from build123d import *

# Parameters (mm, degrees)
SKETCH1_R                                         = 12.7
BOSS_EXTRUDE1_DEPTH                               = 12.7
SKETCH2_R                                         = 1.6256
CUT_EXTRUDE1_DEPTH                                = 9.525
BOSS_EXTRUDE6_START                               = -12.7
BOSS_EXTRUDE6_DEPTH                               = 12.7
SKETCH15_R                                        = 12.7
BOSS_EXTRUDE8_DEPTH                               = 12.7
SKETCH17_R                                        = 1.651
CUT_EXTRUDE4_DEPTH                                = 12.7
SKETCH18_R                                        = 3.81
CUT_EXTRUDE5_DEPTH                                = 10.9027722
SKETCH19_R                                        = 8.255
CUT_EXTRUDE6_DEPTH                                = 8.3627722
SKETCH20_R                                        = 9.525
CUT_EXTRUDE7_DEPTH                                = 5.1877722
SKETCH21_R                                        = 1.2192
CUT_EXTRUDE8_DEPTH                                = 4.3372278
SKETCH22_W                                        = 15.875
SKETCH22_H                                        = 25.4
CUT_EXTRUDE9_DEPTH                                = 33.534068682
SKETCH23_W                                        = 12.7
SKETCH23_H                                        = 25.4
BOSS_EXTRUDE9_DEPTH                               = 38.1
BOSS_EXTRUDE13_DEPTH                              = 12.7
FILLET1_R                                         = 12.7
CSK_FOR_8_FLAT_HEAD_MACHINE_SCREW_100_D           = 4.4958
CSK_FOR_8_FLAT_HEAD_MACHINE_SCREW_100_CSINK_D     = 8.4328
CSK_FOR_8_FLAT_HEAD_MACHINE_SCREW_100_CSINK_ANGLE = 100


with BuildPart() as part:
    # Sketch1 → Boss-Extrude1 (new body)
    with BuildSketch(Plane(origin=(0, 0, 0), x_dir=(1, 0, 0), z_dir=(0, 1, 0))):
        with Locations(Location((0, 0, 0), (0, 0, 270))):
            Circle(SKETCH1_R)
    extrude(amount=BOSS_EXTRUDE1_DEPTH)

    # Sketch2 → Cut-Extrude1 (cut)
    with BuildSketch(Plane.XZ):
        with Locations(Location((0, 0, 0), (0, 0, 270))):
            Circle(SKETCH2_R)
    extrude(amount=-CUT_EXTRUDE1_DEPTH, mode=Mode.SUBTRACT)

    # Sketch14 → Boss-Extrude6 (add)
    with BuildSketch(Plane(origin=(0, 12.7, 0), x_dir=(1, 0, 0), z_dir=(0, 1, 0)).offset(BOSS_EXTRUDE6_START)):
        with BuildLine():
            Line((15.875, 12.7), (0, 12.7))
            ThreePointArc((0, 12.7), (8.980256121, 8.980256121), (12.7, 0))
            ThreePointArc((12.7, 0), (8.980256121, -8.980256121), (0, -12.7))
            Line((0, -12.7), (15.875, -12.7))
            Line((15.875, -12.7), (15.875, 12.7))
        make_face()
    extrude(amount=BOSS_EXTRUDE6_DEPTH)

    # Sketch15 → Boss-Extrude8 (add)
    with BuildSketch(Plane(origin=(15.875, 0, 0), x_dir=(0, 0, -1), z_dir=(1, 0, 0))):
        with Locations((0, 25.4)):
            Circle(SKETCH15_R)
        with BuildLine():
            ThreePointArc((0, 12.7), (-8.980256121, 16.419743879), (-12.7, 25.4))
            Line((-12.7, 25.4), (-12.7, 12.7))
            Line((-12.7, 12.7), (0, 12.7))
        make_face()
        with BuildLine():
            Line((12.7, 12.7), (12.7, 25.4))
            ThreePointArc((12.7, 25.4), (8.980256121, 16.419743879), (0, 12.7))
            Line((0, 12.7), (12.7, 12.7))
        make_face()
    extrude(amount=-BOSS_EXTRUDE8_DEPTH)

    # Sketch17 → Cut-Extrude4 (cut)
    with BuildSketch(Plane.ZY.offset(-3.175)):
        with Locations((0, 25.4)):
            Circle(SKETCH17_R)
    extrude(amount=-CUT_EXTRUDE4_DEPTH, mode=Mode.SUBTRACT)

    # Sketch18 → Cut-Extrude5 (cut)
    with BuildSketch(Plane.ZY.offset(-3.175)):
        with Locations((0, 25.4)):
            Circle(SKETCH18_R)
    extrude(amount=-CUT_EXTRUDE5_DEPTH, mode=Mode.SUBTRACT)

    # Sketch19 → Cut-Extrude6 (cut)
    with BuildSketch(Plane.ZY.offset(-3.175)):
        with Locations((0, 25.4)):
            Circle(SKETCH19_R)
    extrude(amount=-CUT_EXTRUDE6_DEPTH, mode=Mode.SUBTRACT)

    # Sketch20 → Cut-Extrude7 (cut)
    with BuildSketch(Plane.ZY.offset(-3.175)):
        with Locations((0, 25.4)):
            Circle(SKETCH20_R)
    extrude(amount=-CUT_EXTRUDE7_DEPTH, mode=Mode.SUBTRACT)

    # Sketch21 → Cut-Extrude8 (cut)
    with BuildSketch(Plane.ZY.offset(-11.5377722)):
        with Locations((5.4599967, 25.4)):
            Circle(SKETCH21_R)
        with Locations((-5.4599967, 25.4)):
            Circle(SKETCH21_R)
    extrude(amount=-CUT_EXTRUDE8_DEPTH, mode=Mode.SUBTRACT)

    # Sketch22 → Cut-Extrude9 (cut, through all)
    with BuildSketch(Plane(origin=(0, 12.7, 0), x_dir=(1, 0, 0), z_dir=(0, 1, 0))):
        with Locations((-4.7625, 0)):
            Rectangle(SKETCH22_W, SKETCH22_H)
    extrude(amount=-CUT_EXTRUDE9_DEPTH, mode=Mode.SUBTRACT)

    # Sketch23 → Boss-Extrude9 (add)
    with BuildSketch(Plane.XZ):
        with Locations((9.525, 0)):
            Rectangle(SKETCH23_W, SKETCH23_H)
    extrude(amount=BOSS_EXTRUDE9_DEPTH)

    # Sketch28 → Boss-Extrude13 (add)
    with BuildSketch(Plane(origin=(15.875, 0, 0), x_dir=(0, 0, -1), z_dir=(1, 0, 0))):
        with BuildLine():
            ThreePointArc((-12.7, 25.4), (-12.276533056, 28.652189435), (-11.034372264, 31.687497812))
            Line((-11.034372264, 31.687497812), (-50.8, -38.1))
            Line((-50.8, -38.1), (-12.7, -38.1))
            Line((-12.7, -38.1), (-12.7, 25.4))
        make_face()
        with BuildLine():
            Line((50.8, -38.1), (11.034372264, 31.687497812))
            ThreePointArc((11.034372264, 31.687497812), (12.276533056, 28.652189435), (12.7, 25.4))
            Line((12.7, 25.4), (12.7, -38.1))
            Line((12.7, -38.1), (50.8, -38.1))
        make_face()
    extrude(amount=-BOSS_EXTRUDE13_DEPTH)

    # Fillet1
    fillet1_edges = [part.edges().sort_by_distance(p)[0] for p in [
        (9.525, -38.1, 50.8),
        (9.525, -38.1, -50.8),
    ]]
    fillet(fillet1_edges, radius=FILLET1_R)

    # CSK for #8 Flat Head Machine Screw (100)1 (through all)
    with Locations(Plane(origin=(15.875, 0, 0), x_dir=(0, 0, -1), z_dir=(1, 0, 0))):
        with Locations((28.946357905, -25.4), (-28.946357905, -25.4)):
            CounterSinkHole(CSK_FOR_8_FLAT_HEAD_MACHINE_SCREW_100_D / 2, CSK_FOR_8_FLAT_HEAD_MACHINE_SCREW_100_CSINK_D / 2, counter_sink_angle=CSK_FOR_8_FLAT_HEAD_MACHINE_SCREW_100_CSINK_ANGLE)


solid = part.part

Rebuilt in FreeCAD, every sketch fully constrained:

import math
import FreeCAD as App
import Part
import Sketcher
from FreeCAD import Vector
Q = App.Units.Quantity


def edges_at(feature, points):
    """Names of the edges that pass closest to the given points."""
    edges = feature.Shape.Edges
    near = lambda p: min(range(len(edges)), key=lambda i: edges[i].distToShape(Part.Vertex(*p))[0])
    return sorted({f"Edge{near(p) + 1}" for p in points})

doc = App.newDocument("Part")
body = doc.addObject("PartDesign::Body", "Body")

sketch1 = body.newObject("Sketcher::SketchObject", "Sketch")
sketch1.AttachmentSupport = (doc.getObject("XZ_Plane"), [""])
sketch1.MapMode = "FlatFace"
sketch1.addGeometry(Part.Circle(Vector(0, 0, 0), Vector(0, 0, 1), 13), False)
sketch1.addConstraint([
    Sketcher.Constraint("Coincident", 0, 3, -1, 1),
    Sketcher.Constraint("Diameter", 0, Q("1 in")),
])
pad1 = body.newObject("PartDesign::Pad", "Pad")
pad1.Profile = sketch1
pad1.Length = Q("0.5 in")
pad1.Reversed = True

sketch2 = body.newObject("Sketcher::SketchObject", "Sketch001")
sketch2.AttachmentSupport = (doc.getObject("XZ_Plane"), [""])
sketch2.MapMode = "FlatFace"
sketch2.addGeometry(Part.Circle(Vector(0, 0, 0), Vector(0, 0, 1), 1.6), False)
sketch2.addConstraint([
    Sketcher.Constraint("Coincident", 0, 3, -1, 1),
    Sketcher.Constraint("Diameter", 0, Q("0.128 in")),
])
pocket1 = body.newObject("PartDesign::Pocket", "Pocket")
pocket1.Profile = sketch2
pocket1.Length = Q("0.375 in")

sketch3 = body.newObject("Sketcher::SketchObject", "Sketch002")
sketch3.AttachmentSupport = (doc.getObject("XZ_Plane"), [""])
sketch3.MapMode = "FlatFace"
sketch3.addGeometry([
    Part.LineSegment(Vector(16, -13, 0), Vector(0, -13, 0)),
    Part.ArcOfCircle(Part.Circle(Vector(0, 0, 0), Vector(0, 0, 1), 13), math.radians(-90), math.radians(0)),
    Part.ArcOfCircle(Part.Circle(Vector(0, 0, 0), Vector(0, 0, 1), 13), math.radians(0), math.radians(90)),
    Part.LineSegment(Vector(0, 13, 0), Vector(16, 13, 0)),
    Part.LineSegment(Vector(16, 13, 0), Vector(16, -13, 0)),
], False)
sketch3.addConstraint([
    Sketcher.Constraint("Tangent", 0, 2, 1, 1),
    Sketcher.Constraint("Tangent", 1, 2, 2, 1),
    Sketcher.Constraint("Tangent", 2, 2, 3, 1),
    Sketcher.Constraint("Coincident", 3, 2, 4, 1),
    Sketcher.Constraint("Coincident", 4, 2, 0, 1),
    Sketcher.Constraint("Horizontal", 0),
    Sketcher.Constraint("Horizontal", 3),
    Sketcher.Constraint("Vertical", 4),
    Sketcher.Constraint("Coincident", 1, 3, -1, 1),
    Sketcher.Constraint("Equal", 1, 2),
    Sketcher.Constraint("PointOnObject", 1, 2, -1),
    Sketcher.Constraint("Radius", 1, Q("0.5 in")),
    Sketcher.Constraint("DistanceX", 0, 2, 0, 1, Q("0.625 in")),
])
pad2 = body.newObject("PartDesign::Pad", "Pad001")
pad2.Profile = sketch3
pad2.Length = Q("0.5 in")
pad2.Reversed = True

sketch4 = body.newObject("Sketcher::SketchObject", "Sketch003")
sketch4.AttachmentSupport = (doc.getObject("YZ_Plane"), [""])
sketch4.MapMode = "FlatFace"
sketch4.AttachmentOffset = App.Placement(Vector(0, 0, 0.625 * 25.4), App.Rotation())
sketch4.addGeometry([
    Part.LineSegment(Vector(25, 13, 0), Vector(13, 13, 0)),
    Part.LineSegment(Vector(13, 13, 0), Vector(13, -13, 0)),
    Part.LineSegment(Vector(13, -13, 0), Vector(25, -13, 0)),
    Part.ArcOfCircle(Part.Circle(Vector(25, 0, 0), Vector(0, 0, 1), 13), math.radians(-90), math.radians(90)),
], False)
sketch4.addConstraint([
    Sketcher.Constraint("Coincident", 0, 2, 1, 1),
    Sketcher.Constraint("Coincident", 1, 2, 2, 1),
    Sketcher.Constraint("Tangent", 2, 2, 3, 1),
    Sketcher.Constraint("Tangent", 3, 2, 0, 1),
    Sketcher.Constraint("Horizontal", 0),
    Sketcher.Constraint("Vertical", 1),
    Sketcher.Constraint("Horizontal", 2),
    Sketcher.Constraint("PointOnObject", 3, 3, -1),
    Sketcher.Constraint("Radius", 3, Q("0.5 in")),
    Sketcher.Constraint("DistanceX", 0, 2, 0, 1, Q("0.5 in")),
    Sketcher.Constraint("DistanceX", -1, 1, 3, 3, Q("1 in")),
])
pad3 = body.newObject("PartDesign::Pad", "Pad002")
pad3.Profile = sketch4
pad3.Length = Q("0.5 in")
pad3.Reversed = True

sketch5 = body.newObject("Sketcher::SketchObject", "Sketch004")
sketch5.AttachmentSupport = (doc.getObject("YZ_Plane"), [""])
sketch5.MapMode = "FlatFace"
sketch5.AttachmentOffset = App.Placement(Vector(0, 0, 0.125 * 25.4), App.Rotation())
sketch5.addGeometry(Part.Circle(Vector(25.4, 0, 0), Vector(0, 0, 1), 1.7), False)
sketch5.addConstraint([
    Sketcher.Constraint("PointOnObject", 0, 3, -1),
    Sketcher.Constraint("Diameter", 0, Q("0.13 in")),
    Sketcher.Constraint("DistanceX", -1, 1, 0, 3, Q("1 in")),
])
pocket2 = body.newObject("PartDesign::Pocket", "Pocket001")
pocket2.Profile = sketch5
pocket2.Length = Q("0.5 in")
pocket2.Reversed = True

sketch6 = body.newObject("Sketcher::SketchObject", "Sketch005")
sketch6.AttachmentSupport = (doc.getObject("YZ_Plane"), [""])
sketch6.MapMode = "FlatFace"
sketch6.AttachmentOffset = App.Placement(Vector(0, 0, 0.125 * 25.4), App.Rotation())
sketch6.addGeometry(Part.Circle(Vector(25.4, 0, 0), Vector(0, 0, 1), 3.8), False)
sketch6.addConstraint([
    Sketcher.Constraint("PointOnObject", 0, 3, -1),
    Sketcher.Constraint("Diameter", 0, Q("0.3 in")),
    Sketcher.Constraint("DistanceX", -1, 1, 0, 3, Q("1 in")),
])
pocket3 = body.newObject("PartDesign::Pocket", "Pocket002")
pocket3.Profile = sketch6
pocket3.Length = 10.902772
pocket3.Reversed = True

sketch7 = body.newObject("Sketcher::SketchObject", "Sketch006")
sketch7.AttachmentSupport = (doc.getObject("YZ_Plane"), [""])
sketch7.MapMode = "FlatFace"
sketch7.AttachmentOffset = App.Placement(Vector(0, 0, 0.125 * 25.4), App.Rotation())
sketch7.addGeometry(Part.Circle(Vector(25, 0, 0), Vector(0, 0, 1), 8), False)
sketch7.addConstraint([
    Sketcher.Constraint("PointOnObject", 0, 3, -1),
    Sketcher.Constraint("Diameter", 0, Q("0.65 in")),
    Sketcher.Constraint("DistanceX", -1, 1, 0, 3, Q("1 in")),
])
pocket4 = body.newObject("PartDesign::Pocket", "Pocket003")
pocket4.Profile = sketch7
pocket4.Length = 8.362772
pocket4.Reversed = True

sketch8 = body.newObject("Sketcher::SketchObject", "Sketch007")
sketch8.AttachmentSupport = (doc.getObject("YZ_Plane"), [""])
sketch8.MapMode = "FlatFace"
sketch8.AttachmentOffset = App.Placement(Vector(0, 0, 0.125 * 25.4), App.Rotation())
sketch8.addGeometry(Part.Circle(Vector(25, 0, 0), Vector(0, 0, 1), 10), False)
sketch8.addConstraint([
    Sketcher.Constraint("PointOnObject", 0, 3, -1),
    Sketcher.Constraint("Diameter", 0, Q("0.75 in")),
    Sketcher.Constraint("DistanceX", -1, 1, 0, 3, Q("1 in")),
])
pocket5 = body.newObject("PartDesign::Pocket", "Pocket004")
pocket5.Profile = sketch8
pocket5.Length = 5.187772
pocket5.Reversed = True

sketch9 = body.newObject("Sketcher::SketchObject", "Sketch008")
sketch9.AttachmentSupport = (doc.getObject("YZ_Plane"), [""])
sketch9.MapMode = "FlatFace"
sketch9.AttachmentOffset = App.Placement(Vector(0, 0, 11.537772), App.Rotation())
sketch9.addGeometry([
    Part.Circle(Vector(25.4, 5.5, 0), Vector(0, 0, 1), 1.2),
    Part.Circle(Vector(25.4, -5.5, 0), Vector(0, 0, 1), 1.2),
], False)
sketch9.addConstraint([
    Sketcher.Constraint("Equal", 0, 1),
    Sketcher.Constraint("Symmetric", 0, 3, 1, 3, -1),
    Sketcher.Constraint("Diameter", 0, Q("0.096 in")),
    Sketcher.Constraint("DistanceX", -1, 1, 0, 3, Q("1 in")),
    Sketcher.Constraint("DistanceY", -1, 1, 0, 3, Q("5.459997 mm")),
])
pocket6 = body.newObject("PartDesign::Pocket", "Pocket005")
pocket6.Profile = sketch9
pocket6.Length = 4.337228
pocket6.Reversed = True

sketch10 = body.newObject("Sketcher::SketchObject", "Sketch009")
sketch10.AttachmentSupport = (doc.getObject("XZ_Plane"), [""])
sketch10.MapMode = "FlatFace"
sketch10.AttachmentOffset = App.Placement(Vector(0, 0, -0.5 * 25.4), App.Rotation())
sketch10.addGeometry([
    Part.LineSegment(Vector(-13, -13, 0), Vector(-13, 13, 0)),
    Part.LineSegment(Vector(-13, 13, 0), Vector(3, 13, 0)),
    Part.LineSegment(Vector(3, 13, 0), Vector(3, -13, 0)),
    Part.LineSegment(Vector(3, -13, 0), Vector(-13, -13, 0)),
], False)
sketch10.addConstraint([
    Sketcher.Constraint("Coincident", 0, 2, 1, 1),
    Sketcher.Constraint("Coincident", 1, 2, 2, 1),
    Sketcher.Constraint("Coincident", 2, 2, 3, 1),
    Sketcher.Constraint("Coincident", 3, 2, 0, 1),
    Sketcher.Constraint("Vertical", 0),
    Sketcher.Constraint("Horizontal", 1),
    Sketcher.Constraint("Vertical", 2),
    Sketcher.Constraint("Horizontal", 3),
    Sketcher.Constraint("DistanceY", 0, 1, 0, 2, Q("1 in")),
    Sketcher.Constraint("DistanceX", 0, 2, -1, 1, Q("0.5 in")),
    Sketcher.Constraint("DistanceY", -1, 1, 0, 2, Q("0.5 in")),
    Sketcher.Constraint("DistanceX", 1, 1, 1, 2, Q("0.625 in")),
])
pocket7 = body.newObject("PartDesign::Pocket", "Pocket006")
pocket7.Profile = sketch10
pocket7.Type = "ThroughAll"
pocket7.Reversed = True

sketch11 = body.newObject("Sketcher::SketchObject", "Sketch010")
sketch11.AttachmentSupport = (doc.getObject("XZ_Plane"), [""])
sketch11.MapMode = "FlatFace"
sketch11.addGeometry([
    Part.LineSegment(Vector(3, 13, 0), Vector(3, -13, 0)),
    Part.LineSegment(Vector(3, -13, 0), Vector(16, -13, 0)),
    Part.LineSegment(Vector(16, -13, 0), Vector(16, 13, 0)),
    Part.LineSegment(Vector(16, 13, 0), Vector(3, 13, 0)),
], False)
sketch11.addConstraint([
    Sketcher.Constraint("Coincident", 0, 2, 1, 1),
    Sketcher.Constraint("Coincident", 1, 2, 2, 1),
    Sketcher.Constraint("Coincident", 2, 2, 3, 1),
    Sketcher.Constraint("Coincident", 3, 2, 0, 1),
    Sketcher.Constraint("Vertical", 0),
    Sketcher.Constraint("Horizontal", 1),
    Sketcher.Constraint("Vertical", 2),
    Sketcher.Constraint("Horizontal", 3),
    Sketcher.Constraint("DistanceY", 0, 2, 0, 1, Q("1 in")),
    Sketcher.Constraint("DistanceX", 1, 1, 1, 2, Q("0.5 in")),
    Sketcher.Constraint("DistanceY", 0, 2, -1, 1, Q("0.5 in")),
    Sketcher.Constraint("DistanceX", -1, 1, 0, 2, Q("0.125 in")),
])
pad4 = body.newObject("PartDesign::Pad", "Pad003")
pad4.Profile = sketch11
pad4.Length = Q("1.5 in")

sketch12 = body.newObject("Sketcher::SketchObject", "Sketch011")
sketch12.AttachmentSupport = (doc.getObject("YZ_Plane"), [""])
sketch12.MapMode = "FlatFace"
sketch12.AttachmentOffset = App.Placement(Vector(0, 0, 0.625 * 25.4), App.Rotation())
sketch12.addGeometry([
    Part.ArcOfCircle(Part.Circle(Vector(25, 0, 0), Vector(0, 0, 1), 13), math.radians(60), math.radians(90)),
    Part.LineSegment(Vector(32, 11, 0), Vector(-38, 51, 0)),
    Part.LineSegment(Vector(-38, 51, 0), Vector(-38, 13, 0)),
    Part.LineSegment(Vector(-38, 13, 0), Vector(25, 13, 0)),
    Part.LineSegment(Vector(-38, -51, 0), Vector(32, -11, 0)),
    Part.ArcOfCircle(Part.Circle(Vector(25, 0, 0), Vector(0, 0, 1), 13), math.radians(-90), math.radians(-60)),
    Part.LineSegment(Vector(25, -13, 0), Vector(-38, -13, 0)),
    Part.LineSegment(Vector(-38, -13, 0), Vector(-38, -51, 0)),
], False)
sketch12.addConstraint([
    Sketcher.Constraint("Tangent", 0, 1, 1, 1),
    Sketcher.Constraint("Coincident", 1, 2, 2, 1),
    Sketcher.Constraint("Coincident", 2, 2, 3, 1),
    Sketcher.Constraint("Tangent", 3, 2, 0, 2),
    Sketcher.Constraint("Tangent", 4, 2, 5, 2),
    Sketcher.Constraint("Tangent", 5, 1, 6, 1),
    Sketcher.Constraint("Coincident", 6, 2, 7, 1),
    Sketcher.Constraint("Coincident", 7, 2, 4, 1),
    Sketcher.Constraint("Vertical", 2),
    Sketcher.Constraint("Horizontal", 3),
    Sketcher.Constraint("Horizontal", 6),
    Sketcher.Constraint("Vertical", 7),
    Sketcher.Constraint("Coincident", 5, 3, 0, 3),
    Sketcher.Constraint("Equal", 0, 5),
    Sketcher.Constraint("Symmetric", 0, 1, 4, 2, -1),
    Sketcher.Constraint("Vertical", 2, 2, 6, 2),
    Sketcher.Constraint("Radius", 0, Q("0.5 in")),
    Sketcher.Constraint("DistanceX", 3, 1, 3, 2, Q("2.5 in")),
    Sketcher.Constraint("DistanceY", 2, 2, 2, 1, Q("1.5 in")),
    Sketcher.Constraint("DistanceX", -1, 1, 0, 3, Q("1 in")),
])
pad5 = body.newObject("PartDesign::Pad", "Pad004")
pad5.Profile = sketch12
pad5.Length = Q("0.5 in")
pad5.Reversed = True
doc.recompute()

fillet = body.newObject("PartDesign::Fillet", "Fillet")
fillet.Base = (pad5, edges_at(pad5, [(9.525, -38.1, 50.8), (9.525, -38.1, -50.8)]))
fillet.Radius = Q("0.5 in")

sketch13 = body.newObject("Sketcher::SketchObject", "Sketch012")
sketch13.AttachmentSupport = (doc.getObject("YZ_Plane"), [""])
sketch13.MapMode = "FlatFace"
sketch13.AttachmentOffset = App.Placement(Vector(0, 0, 0.625 * 25.4), App.Rotation())
sketch13.addGeometry([
    Part.Circle(Vector(-25.4, -28.9, 0), Vector(0, 0, 1), 2.2),
    Part.Circle(Vector(-25.4, 28.9, 0), Vector(0, 0, 1), 2.2),
], False)
sketch13.addConstraint([
    Sketcher.Constraint("Equal", 0, 1),
    Sketcher.Constraint("Symmetric", 0, 3, 1, 3, -1),
    Sketcher.Constraint("Diameter", 0, Q("0.177 in")),
    Sketcher.Constraint("DistanceX", 0, 3, -1, 1, Q("1 in")),
    Sketcher.Constraint("DistanceY", 0, 3, -1, 1, Q("28.946358 mm")),
])
doc.recompute()
hole = body.newObject("PartDesign::Hole", "Hole")
hole.Profile = sketch13
hole.ThreadType = "None"
hole.Diameter = Q("0.177 in")
hole.DepthType = "ThroughAll"
hole.HoleCutType = "Countersink"
hole.HoleCutDiameter = Q("0.332 in")
hole.HoleCutCountersinkAngle = 100

doc.recompute()
